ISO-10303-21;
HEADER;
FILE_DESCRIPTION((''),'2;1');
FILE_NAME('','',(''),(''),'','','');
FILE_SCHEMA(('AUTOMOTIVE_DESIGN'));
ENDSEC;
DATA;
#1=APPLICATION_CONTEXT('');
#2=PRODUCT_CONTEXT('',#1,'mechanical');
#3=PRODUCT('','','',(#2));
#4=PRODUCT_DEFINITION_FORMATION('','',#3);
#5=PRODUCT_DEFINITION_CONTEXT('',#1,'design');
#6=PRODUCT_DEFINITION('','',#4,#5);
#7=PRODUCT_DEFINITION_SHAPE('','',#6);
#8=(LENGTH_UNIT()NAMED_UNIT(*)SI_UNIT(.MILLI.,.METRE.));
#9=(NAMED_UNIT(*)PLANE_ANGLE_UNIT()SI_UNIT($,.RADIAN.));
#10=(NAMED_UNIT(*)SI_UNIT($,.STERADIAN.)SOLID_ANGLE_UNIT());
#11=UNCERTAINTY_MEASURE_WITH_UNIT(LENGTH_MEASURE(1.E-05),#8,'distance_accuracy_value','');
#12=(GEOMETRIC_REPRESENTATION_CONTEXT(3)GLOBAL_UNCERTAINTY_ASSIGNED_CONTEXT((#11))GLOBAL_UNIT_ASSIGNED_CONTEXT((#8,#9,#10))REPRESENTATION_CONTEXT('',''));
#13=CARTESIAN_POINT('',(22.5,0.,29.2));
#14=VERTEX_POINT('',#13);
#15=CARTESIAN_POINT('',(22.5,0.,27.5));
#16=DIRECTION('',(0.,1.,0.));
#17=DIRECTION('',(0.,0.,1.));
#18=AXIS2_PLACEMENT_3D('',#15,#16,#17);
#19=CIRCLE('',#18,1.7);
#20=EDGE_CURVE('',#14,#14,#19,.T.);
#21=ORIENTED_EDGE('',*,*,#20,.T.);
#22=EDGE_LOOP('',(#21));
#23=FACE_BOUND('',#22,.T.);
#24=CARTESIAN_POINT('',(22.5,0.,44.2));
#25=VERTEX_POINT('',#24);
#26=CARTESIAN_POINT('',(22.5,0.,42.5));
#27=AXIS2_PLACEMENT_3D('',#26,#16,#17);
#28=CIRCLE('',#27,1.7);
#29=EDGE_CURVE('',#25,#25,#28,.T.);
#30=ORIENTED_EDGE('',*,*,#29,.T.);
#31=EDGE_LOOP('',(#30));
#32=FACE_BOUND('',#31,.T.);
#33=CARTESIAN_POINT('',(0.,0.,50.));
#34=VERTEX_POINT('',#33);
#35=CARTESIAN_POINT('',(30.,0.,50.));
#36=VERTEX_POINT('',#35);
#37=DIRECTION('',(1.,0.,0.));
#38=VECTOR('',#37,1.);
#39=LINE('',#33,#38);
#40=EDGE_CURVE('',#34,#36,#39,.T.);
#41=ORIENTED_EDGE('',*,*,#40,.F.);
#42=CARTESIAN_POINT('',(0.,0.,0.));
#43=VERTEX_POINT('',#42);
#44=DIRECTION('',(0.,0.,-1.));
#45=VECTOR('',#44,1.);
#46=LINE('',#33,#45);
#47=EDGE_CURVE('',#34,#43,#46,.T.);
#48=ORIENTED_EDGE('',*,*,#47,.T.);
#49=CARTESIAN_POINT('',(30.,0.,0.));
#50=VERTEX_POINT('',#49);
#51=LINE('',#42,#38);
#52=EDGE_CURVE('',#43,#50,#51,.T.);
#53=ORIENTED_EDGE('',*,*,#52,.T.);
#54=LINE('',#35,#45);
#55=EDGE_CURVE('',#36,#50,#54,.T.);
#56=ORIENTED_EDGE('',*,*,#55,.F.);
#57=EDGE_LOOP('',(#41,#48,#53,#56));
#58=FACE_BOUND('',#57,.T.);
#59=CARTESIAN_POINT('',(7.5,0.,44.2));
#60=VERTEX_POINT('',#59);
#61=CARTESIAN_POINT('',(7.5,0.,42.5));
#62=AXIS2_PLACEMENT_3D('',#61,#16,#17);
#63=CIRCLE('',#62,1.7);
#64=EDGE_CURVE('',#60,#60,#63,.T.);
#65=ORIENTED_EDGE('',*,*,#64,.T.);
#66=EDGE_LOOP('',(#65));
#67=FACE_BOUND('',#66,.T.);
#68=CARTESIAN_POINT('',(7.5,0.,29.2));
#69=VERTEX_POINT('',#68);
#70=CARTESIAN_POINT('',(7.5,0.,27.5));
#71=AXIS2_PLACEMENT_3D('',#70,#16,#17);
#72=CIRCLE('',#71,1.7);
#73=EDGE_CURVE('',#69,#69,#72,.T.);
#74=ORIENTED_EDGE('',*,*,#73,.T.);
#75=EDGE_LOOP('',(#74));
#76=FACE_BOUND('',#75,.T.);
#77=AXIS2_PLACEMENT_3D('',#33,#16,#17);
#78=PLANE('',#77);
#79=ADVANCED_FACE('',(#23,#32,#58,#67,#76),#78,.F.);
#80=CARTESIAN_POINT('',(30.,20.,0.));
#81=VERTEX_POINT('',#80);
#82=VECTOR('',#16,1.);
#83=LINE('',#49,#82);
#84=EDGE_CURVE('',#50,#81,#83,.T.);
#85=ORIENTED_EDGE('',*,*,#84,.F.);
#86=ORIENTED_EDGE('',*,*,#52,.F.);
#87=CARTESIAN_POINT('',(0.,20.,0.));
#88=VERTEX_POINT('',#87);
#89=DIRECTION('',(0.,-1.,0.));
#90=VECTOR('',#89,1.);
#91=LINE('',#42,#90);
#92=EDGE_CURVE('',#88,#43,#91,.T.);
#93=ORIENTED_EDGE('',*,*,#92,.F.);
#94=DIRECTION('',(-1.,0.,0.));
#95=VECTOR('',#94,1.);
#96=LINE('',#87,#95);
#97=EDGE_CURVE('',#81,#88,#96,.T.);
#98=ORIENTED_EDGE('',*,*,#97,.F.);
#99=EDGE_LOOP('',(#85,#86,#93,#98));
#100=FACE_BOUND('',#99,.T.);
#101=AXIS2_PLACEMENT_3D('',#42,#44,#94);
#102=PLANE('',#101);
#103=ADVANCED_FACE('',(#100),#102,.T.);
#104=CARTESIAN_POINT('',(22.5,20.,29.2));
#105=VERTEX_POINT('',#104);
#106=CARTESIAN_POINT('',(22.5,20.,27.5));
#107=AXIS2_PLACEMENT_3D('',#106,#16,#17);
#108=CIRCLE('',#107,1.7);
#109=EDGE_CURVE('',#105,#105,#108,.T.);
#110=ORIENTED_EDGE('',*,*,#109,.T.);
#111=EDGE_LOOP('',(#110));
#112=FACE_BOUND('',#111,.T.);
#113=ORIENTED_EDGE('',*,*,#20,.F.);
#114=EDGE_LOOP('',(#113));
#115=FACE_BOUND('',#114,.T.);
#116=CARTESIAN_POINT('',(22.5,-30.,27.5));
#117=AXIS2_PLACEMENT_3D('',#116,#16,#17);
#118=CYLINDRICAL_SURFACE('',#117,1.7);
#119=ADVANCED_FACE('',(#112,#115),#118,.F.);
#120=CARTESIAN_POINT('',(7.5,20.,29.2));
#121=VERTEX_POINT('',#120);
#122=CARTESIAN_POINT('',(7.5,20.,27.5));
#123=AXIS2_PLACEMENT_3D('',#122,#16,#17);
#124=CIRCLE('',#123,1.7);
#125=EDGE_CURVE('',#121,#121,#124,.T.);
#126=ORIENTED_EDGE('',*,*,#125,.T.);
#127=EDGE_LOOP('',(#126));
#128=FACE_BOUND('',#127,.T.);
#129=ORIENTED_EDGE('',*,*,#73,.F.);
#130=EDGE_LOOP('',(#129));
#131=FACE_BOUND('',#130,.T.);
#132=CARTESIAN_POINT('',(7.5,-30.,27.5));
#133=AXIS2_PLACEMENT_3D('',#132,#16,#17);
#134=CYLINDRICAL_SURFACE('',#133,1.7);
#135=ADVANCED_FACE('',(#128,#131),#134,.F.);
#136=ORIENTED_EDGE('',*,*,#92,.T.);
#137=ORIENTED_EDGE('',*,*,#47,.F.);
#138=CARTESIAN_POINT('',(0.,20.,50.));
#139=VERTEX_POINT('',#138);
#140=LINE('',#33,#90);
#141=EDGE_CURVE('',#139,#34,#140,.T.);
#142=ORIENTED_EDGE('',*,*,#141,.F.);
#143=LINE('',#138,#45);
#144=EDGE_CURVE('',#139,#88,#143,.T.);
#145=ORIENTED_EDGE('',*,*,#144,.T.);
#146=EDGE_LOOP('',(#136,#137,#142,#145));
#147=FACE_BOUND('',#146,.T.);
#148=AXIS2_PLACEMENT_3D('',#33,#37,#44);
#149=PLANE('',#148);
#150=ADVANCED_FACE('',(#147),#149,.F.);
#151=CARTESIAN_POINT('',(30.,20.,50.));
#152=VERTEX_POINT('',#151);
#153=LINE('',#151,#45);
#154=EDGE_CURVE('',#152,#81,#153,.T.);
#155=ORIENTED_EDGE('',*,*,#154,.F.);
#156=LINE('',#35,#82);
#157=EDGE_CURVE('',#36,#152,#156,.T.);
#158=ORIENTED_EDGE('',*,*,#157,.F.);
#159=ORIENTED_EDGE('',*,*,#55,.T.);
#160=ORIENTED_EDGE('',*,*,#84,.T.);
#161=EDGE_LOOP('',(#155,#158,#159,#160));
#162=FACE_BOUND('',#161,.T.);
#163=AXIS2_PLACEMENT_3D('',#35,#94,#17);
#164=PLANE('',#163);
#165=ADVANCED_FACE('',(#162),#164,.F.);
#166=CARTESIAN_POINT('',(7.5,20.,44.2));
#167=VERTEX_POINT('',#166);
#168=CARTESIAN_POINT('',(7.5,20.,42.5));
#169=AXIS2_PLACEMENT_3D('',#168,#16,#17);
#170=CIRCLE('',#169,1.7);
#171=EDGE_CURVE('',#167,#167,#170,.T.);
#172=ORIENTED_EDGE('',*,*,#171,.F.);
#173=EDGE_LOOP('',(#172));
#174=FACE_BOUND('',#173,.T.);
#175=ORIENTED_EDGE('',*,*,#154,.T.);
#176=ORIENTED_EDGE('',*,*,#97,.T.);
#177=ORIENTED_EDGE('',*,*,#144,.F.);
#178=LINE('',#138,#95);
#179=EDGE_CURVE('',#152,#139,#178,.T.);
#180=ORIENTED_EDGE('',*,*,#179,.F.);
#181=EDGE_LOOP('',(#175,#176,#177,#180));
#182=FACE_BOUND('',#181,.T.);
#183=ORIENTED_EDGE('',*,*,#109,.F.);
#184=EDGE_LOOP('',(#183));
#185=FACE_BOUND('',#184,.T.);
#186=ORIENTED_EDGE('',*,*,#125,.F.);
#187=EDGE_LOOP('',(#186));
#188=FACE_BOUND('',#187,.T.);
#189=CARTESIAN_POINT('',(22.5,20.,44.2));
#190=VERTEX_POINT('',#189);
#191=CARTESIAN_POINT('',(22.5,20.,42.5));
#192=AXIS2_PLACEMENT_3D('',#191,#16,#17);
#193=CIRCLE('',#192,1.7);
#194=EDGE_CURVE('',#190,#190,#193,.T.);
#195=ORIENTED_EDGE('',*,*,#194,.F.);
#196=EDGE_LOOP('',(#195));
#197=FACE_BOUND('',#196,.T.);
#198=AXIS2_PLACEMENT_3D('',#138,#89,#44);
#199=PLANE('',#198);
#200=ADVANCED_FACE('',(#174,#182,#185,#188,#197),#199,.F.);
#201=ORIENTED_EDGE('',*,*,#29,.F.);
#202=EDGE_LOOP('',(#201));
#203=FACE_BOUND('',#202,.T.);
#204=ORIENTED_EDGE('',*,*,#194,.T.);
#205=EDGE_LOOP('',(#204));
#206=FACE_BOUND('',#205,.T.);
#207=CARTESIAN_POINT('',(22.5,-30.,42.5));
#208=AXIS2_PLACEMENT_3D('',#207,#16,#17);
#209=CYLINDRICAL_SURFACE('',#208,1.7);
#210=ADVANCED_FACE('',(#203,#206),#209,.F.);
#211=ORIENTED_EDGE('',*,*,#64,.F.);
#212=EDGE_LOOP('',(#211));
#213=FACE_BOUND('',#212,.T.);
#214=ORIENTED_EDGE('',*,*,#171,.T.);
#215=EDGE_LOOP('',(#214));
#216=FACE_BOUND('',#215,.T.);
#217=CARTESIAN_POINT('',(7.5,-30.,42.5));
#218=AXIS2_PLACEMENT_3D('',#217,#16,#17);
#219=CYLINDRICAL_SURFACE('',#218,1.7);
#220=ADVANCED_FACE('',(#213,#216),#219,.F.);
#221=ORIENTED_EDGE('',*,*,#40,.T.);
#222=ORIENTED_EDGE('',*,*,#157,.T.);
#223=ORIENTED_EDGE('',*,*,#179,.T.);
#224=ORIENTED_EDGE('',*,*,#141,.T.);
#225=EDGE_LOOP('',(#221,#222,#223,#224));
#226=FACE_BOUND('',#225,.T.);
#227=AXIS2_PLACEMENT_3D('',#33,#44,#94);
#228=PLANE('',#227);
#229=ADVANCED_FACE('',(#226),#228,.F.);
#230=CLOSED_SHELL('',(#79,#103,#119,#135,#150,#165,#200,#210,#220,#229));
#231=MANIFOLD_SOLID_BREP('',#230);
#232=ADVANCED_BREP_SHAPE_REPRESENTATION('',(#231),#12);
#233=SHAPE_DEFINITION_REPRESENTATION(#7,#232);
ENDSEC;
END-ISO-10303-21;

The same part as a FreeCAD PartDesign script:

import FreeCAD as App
import Part
import Sketcher
Q = App.Units.Quantity

doc = App.newDocument("Part")
body = doc.addObject("PartDesign::Body", "Body")

sketch1 = body.newObject("Sketcher::SketchObject", "Sketch")
sketch1.AttachmentSupport = (doc.getObject("XY_Plane"), [""])
sketch1.MapMode = "FlatFace"
sketch1.addGeometry([
    Part.LineSegment(App.Vector(0, 20, 0), App.Vector(0, 0, 0)),
    Part.LineSegment(App.Vector(0, 0, 0), App.Vector(30, 0, 0)),
    Part.LineSegment(App.Vector(30, 0, 0), App.Vector(30, 20, 0)),
    Part.LineSegment(App.Vector(30, 20, 0), App.Vector(0, 20, 0)),
], False)
sketch1.addConstraint([
    Sketcher.Constraint("Coincident", 0, 2, 1, 1),
    Sketcher.Constraint("Coincident", 1, 2, 2, 1),
    Sketcher.Constraint("Coincident", 2, 2, 3, 1),
    Sketcher.Constraint("Coincident", 3, 2, 0, 1),
    Sketcher.Constraint("Vertical", 0),
    Sketcher.Constraint("Horizontal", 1),
    Sketcher.Constraint("Vertical", 2),
    Sketcher.Constraint("Horizontal", 3),
    Sketcher.Constraint("Coincident", 0, 2, -1, 1),
    Sketcher.Constraint("DistanceX", 1, 1, 1, 2, Q("30 mm")),
    Sketcher.Constraint("DistanceY", 0, 2, 0, 1, Q("20 mm")),
])
pad1 = body.newObject("PartDesign::Pad", "Pad")
pad1.Profile = sketch1
pad1.Length = 50

sketch2 = body.newObject("Sketcher::SketchObject", "Sketch001")
sketch2.AttachmentSupport = (doc.getObject("XZ_Plane"), [""])
sketch2.MapMode = "FlatFace"
sketch2.AttachmentOffset = App.Placement(App.Vector(0, 0, -20), App.Rotation())
sketch2.addGeometry([
    Part.Circle(App.Vector(7.5, 27.5, 0), App.Vector(0, 0, 1), 1.7),
    Part.Circle(App.Vector(22.5, 27.5, 0), App.Vector(0, 0, 1), 1.7),
    Part.Circle(App.Vector(22.5, 42.5, 0), App.Vector(0, 0, 1), 1.7),
    Part.Circle(App.Vector(7.5, 42.5, 0), App.Vector(0, 0, 1), 1.7),
], False)
sketch2.addConstraint([
    Sketcher.Constraint("Equal", 0, 1),
    Sketcher.Constraint("Equal", 1, 2),
    Sketcher.Constraint("Equal", 2, 3),
    Sketcher.Constraint("Horizontal", 0, 3, 1, 3),
    Sketcher.Constraint("Horizontal", 2, 3, 3, 3),
    Sketcher.Constraint("Vertical", 1, 3, 2, 3),
    Sketcher.Constraint("Vertical", 0, 3, 3, 3),
    Sketcher.Constraint("Diameter", 0, Q("3.4 mm")),
    Sketcher.Constraint("DistanceX", 0, 3, 1, 3, Q("15 mm")),
    Sketcher.Constraint("DistanceY", 1, 3, 2, 3, Q("15 mm")),
    Sketcher.Constraint("DistanceX", -1, 1, 0, 3, Q("7.5 mm")),
    Sketcher.Constraint("DistanceY", -1, 1, 0, 3, Q("27.5 mm")),
])
pocket1 = body.newObject("PartDesign::Pocket", "Pocket")
pocket1.Profile = sketch2
pocket1.Length = 50
pocket1.Reversed = True

doc.recompute()
